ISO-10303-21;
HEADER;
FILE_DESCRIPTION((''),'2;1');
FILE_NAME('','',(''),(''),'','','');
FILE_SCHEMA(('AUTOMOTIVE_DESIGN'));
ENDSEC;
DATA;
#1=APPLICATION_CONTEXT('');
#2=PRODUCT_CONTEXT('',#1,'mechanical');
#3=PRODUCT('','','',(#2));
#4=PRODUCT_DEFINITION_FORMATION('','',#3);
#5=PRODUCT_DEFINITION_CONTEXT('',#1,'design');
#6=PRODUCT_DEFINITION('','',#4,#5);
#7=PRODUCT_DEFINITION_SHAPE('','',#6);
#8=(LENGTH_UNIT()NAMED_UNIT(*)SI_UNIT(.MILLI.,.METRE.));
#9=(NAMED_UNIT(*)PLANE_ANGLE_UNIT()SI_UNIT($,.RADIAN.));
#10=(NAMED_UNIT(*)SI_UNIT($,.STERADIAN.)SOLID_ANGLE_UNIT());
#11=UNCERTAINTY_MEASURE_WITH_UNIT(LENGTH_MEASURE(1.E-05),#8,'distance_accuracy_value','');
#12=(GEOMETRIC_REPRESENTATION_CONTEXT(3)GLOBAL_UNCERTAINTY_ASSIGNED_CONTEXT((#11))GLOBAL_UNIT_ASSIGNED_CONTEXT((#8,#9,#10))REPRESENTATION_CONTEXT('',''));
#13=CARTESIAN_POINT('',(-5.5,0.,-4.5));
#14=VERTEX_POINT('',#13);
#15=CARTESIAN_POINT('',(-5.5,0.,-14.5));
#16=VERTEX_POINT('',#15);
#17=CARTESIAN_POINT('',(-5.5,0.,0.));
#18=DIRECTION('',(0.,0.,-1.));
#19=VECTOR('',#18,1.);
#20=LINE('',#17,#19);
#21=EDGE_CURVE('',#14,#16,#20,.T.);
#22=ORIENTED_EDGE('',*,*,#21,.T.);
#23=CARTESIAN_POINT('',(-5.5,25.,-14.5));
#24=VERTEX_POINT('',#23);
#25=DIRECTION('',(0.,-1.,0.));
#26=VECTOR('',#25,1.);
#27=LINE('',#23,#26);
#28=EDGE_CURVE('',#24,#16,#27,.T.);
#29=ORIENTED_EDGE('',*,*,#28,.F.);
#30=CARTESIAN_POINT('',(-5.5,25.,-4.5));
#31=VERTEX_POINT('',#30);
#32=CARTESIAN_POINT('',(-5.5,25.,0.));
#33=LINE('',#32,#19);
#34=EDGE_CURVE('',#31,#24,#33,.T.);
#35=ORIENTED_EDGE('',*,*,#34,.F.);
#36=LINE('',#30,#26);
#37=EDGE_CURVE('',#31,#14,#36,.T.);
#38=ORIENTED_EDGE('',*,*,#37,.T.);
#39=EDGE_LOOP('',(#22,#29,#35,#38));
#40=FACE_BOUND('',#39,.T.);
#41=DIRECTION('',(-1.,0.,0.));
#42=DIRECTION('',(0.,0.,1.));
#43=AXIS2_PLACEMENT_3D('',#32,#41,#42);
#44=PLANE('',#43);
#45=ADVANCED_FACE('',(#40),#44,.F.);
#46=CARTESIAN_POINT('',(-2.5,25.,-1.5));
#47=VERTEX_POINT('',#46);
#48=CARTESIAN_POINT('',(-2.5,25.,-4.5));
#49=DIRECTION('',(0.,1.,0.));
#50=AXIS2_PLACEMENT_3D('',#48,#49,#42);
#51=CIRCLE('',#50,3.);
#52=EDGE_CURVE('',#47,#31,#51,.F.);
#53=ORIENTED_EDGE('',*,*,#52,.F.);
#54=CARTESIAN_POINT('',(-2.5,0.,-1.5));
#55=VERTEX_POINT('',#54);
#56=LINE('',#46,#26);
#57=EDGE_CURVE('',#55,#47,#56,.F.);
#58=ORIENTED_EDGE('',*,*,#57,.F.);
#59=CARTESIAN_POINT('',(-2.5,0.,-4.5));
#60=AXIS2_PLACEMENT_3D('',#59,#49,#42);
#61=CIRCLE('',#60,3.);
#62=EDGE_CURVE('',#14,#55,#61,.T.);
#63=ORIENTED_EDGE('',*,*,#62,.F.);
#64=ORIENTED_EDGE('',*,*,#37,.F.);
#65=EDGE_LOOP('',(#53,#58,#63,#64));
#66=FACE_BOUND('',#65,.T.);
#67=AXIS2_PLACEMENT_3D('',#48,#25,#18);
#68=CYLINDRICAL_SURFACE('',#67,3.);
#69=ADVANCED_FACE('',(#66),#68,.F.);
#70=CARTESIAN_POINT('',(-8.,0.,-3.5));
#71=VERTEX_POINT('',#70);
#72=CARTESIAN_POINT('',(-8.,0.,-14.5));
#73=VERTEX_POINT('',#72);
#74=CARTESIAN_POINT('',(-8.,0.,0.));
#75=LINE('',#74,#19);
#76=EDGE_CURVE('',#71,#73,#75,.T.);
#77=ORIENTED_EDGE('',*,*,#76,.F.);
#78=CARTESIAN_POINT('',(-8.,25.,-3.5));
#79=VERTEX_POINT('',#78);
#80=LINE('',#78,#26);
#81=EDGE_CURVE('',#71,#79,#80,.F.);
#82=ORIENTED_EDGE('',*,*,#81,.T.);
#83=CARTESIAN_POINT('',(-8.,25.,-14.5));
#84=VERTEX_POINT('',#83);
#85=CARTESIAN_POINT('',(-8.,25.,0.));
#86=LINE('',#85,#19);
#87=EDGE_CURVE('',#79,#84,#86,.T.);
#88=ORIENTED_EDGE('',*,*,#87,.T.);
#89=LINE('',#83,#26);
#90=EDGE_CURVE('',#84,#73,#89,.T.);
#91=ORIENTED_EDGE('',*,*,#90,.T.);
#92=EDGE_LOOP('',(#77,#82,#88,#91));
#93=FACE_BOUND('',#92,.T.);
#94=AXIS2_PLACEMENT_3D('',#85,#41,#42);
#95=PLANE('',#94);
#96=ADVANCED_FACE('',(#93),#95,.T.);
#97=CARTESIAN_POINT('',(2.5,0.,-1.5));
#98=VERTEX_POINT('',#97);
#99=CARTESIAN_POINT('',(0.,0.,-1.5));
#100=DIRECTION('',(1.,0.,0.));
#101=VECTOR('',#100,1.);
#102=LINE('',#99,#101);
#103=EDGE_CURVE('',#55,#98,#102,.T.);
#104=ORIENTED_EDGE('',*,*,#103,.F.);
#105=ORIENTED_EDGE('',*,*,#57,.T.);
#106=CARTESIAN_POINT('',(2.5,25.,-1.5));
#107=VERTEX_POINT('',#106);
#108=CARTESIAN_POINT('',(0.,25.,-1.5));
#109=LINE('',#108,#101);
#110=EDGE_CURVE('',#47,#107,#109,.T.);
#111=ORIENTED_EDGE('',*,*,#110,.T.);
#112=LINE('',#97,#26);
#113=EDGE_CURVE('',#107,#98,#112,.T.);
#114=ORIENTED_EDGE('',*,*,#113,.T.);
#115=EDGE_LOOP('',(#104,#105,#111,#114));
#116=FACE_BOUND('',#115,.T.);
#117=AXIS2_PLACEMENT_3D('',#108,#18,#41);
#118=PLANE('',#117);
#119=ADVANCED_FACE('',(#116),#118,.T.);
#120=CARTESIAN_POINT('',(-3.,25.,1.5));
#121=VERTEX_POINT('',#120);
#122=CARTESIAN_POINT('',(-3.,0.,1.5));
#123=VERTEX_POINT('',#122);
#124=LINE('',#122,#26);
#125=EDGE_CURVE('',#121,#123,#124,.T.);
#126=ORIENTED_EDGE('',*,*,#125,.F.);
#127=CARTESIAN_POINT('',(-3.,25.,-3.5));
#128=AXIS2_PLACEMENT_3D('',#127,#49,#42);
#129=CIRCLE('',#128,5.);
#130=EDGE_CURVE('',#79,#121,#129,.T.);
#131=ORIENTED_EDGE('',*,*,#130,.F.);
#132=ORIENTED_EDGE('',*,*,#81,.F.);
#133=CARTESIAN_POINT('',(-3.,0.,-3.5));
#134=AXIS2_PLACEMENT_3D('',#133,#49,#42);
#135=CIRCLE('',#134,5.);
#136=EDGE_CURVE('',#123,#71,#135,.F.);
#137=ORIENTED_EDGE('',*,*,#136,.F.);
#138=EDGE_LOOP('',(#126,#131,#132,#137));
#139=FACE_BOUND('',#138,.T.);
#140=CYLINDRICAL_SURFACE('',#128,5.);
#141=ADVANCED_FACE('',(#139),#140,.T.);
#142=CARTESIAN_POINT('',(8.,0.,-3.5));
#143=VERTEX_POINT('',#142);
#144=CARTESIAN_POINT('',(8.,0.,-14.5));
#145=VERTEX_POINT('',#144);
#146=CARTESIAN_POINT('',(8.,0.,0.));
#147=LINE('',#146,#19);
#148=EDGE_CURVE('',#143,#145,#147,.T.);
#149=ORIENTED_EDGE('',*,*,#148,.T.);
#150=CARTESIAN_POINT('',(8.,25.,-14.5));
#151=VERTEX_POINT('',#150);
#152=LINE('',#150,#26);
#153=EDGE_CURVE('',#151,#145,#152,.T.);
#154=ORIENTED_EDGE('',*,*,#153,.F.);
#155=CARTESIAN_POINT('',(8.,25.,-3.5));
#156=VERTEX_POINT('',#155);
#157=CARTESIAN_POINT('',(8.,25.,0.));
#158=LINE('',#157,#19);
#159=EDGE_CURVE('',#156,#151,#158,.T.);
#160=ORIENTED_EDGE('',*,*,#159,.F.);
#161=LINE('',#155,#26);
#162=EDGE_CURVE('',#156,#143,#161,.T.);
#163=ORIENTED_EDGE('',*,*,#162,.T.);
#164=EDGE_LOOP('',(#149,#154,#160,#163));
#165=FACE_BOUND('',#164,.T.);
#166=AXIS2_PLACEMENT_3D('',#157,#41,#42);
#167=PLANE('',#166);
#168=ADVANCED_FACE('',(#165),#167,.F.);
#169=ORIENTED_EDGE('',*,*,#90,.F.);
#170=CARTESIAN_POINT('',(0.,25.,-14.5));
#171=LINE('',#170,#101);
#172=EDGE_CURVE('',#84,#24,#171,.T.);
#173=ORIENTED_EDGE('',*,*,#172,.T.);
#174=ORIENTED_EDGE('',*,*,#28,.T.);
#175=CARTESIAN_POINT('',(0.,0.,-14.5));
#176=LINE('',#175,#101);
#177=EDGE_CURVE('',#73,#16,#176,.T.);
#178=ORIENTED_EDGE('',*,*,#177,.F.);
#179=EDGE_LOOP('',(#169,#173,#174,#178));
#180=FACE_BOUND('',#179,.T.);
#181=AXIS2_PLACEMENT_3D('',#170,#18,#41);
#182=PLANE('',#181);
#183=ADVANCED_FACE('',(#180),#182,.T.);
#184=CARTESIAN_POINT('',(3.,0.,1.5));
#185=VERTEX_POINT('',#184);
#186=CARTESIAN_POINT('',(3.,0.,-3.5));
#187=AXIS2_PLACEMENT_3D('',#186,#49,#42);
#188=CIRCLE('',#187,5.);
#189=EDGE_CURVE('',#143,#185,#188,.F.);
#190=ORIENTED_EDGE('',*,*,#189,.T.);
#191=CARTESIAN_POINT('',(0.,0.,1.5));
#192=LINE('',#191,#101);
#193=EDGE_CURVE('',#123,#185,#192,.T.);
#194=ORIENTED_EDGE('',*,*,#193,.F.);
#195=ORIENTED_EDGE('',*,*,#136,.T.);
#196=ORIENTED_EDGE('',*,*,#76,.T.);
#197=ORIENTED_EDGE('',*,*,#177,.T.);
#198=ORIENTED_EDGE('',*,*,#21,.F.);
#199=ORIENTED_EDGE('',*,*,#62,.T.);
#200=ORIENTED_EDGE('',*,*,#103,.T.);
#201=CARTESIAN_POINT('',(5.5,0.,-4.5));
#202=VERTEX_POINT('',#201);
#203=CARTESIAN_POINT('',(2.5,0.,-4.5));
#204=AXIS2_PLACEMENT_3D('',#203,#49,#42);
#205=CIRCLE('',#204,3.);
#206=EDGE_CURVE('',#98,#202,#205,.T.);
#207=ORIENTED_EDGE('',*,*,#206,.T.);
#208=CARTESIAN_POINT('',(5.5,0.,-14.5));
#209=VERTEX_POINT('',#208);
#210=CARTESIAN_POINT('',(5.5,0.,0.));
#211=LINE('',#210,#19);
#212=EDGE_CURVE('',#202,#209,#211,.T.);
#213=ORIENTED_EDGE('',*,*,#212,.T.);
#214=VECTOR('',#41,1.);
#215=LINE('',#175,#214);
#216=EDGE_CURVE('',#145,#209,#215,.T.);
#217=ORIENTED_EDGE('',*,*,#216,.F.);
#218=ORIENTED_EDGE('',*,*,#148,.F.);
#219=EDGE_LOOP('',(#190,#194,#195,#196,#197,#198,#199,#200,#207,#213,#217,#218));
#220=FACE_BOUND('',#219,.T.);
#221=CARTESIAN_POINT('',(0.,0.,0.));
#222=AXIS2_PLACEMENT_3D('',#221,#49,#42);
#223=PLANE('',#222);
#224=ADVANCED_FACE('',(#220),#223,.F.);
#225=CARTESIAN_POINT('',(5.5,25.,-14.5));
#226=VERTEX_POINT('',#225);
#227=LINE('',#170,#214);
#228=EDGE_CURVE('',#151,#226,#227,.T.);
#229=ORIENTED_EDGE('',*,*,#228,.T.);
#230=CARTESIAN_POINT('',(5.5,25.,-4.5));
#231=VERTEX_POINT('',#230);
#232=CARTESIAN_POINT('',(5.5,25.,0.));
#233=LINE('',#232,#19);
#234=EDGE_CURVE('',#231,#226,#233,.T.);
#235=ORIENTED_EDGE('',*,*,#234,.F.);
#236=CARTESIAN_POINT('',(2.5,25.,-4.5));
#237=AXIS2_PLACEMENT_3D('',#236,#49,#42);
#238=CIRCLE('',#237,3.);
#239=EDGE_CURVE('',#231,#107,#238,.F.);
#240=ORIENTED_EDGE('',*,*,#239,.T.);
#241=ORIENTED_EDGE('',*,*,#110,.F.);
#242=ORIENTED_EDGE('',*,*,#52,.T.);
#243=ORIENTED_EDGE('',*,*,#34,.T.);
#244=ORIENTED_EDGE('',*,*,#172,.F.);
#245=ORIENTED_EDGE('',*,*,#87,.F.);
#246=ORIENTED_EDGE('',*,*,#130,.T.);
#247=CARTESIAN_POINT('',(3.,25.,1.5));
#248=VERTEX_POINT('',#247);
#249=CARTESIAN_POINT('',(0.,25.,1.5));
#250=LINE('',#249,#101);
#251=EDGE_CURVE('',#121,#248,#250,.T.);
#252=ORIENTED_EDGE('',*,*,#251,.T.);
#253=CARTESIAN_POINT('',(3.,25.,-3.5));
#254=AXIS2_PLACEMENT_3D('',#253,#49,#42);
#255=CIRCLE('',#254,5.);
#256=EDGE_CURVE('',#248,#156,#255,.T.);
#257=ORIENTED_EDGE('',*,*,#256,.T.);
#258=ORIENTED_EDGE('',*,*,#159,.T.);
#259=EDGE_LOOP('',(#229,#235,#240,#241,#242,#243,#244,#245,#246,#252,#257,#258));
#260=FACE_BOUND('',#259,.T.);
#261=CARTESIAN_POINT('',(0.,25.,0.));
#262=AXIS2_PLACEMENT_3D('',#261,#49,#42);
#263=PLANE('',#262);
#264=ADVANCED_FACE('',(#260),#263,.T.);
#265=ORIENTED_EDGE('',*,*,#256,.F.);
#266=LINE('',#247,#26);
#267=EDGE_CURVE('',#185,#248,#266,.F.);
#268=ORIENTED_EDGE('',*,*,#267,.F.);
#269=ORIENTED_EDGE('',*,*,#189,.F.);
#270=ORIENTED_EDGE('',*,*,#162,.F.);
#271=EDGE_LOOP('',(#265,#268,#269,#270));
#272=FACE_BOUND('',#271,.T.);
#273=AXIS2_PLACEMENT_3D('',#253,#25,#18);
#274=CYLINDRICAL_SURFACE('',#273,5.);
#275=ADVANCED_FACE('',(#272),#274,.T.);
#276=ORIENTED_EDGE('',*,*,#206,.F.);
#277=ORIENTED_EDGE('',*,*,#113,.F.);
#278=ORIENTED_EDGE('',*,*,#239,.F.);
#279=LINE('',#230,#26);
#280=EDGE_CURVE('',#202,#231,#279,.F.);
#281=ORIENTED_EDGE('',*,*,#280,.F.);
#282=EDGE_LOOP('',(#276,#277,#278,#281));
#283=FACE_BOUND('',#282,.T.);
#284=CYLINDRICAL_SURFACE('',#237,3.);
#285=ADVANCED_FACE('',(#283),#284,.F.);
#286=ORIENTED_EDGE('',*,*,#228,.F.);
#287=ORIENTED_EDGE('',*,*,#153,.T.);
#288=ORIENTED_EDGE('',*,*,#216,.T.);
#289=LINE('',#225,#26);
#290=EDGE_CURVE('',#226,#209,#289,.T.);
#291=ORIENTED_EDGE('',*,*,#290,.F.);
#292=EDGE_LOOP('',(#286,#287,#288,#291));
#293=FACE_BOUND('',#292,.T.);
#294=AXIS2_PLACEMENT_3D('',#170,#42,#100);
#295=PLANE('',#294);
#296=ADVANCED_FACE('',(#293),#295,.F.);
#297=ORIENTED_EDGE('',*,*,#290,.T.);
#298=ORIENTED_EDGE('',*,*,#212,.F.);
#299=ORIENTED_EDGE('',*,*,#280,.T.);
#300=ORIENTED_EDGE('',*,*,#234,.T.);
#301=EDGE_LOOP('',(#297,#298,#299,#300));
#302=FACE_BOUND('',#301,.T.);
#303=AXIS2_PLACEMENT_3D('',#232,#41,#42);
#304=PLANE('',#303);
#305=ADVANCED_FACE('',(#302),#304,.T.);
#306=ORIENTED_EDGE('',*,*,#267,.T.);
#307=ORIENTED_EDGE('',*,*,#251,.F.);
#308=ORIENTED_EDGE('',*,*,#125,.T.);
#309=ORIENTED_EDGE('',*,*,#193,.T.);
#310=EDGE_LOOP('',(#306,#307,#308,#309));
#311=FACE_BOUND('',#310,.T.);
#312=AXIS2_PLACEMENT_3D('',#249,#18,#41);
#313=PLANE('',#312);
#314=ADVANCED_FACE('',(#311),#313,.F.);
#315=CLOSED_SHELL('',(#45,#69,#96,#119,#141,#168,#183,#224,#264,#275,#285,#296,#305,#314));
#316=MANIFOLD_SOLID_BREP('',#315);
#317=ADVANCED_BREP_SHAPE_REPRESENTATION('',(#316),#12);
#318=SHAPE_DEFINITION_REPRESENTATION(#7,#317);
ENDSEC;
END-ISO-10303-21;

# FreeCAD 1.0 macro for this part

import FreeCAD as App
import Part
import Sketcher
Q = App.Units.Quantity


def edges_at(feature, points):
    """Names of the edges that pass closest to the given points."""
    edges = feature.Shape.Edges
    near = lambda p: min(range(len(edges)), key=lambda i: edges[i].distToShape(Part.Vertex(*p))[0])
    return sorted({f"Edge{near(p) + 1}" for p in points})

doc = App.newDocument("Part")
params = doc.addObject("Spreadsheet::Sheet", "Params")
for row, (alias, value) in enumerate([
    ("sketch1_width", "11 mm"),
    ("sketch1_width2", "16 mm"),
    ("sketch1_height", "13 mm"),
    ("pad1_length", "25 mm"),
    ("fillet_radius", "3 mm"),
    ("fillet2_radius", "5 mm"),
], start=1):
    params.set(f"A{row}", alias)
    params.set(f"B{row}", "=" + value)
    params.setAlias(f"B{row}", alias)

body = doc.addObject("PartDesign::Body", "Body")

sketch1 = body.newObject("Sketcher::SketchObject", "Sketch")
sketch1.AttachmentSupport = (doc.getObject("XZ_Plane"), [""])
sketch1.MapMode = "FlatFace"
sketch1.addGeometry([
    Part.LineSegment(App.Vector(5.5, -14.5, 0), App.Vector(5.5, -1.5, 0)),
    Part.LineSegment(App.Vector(5.5, -1.5, 0), App.Vector(-5.5, -1.5, 0)),
    Part.LineSegment(App.Vector(-5.5, -1.5, 0), App.Vector(-5.5, -14.5, 0)),
    Part.LineSegment(App.Vector(-5.5, -14.5, 0), App.Vector(-8, -14.5, 0)),
    Part.LineSegment(App.Vector(-8, -14.5, 0), App.Vector(-8, 1.5, 0)),
    Part.LineSegment(App.Vector(-8, 1.5, 0), App.Vector(8, 1.5, 0)),
    Part.LineSegment(App.Vector(8, 1.5, 0), App.Vector(8, -14.5, 0)),
    Part.LineSegment(App.Vector(8, -14.5, 0), App.Vector(5.5, -14.5, 0)),
], False)
sketch1.addConstraint([
    Sketcher.Constraint("Coincident", 0, 2, 1, 1),
    Sketcher.Constraint("Coincident", 1, 2, 2, 1),
    Sketcher.Constraint("Coincident", 2, 2, 3, 1),
    Sketcher.Constraint("Coincident", 3, 2, 4, 1),
    Sketcher.Constraint("Coincident", 4, 2, 5, 1),
    Sketcher.Constraint("Coincident", 5, 2, 6, 1),
    Sketcher.Constraint("Coincident", 6, 2, 7, 1),
    Sketcher.Constraint("Coincident", 7, 2, 0, 1),
    Sketcher.Constraint("Vertical", 0),
    Sketcher.Constraint("Horizontal", 1),
    Sketcher.Constraint("Vertical", 2),
    Sketcher.Constraint("Horizontal", 3),
    Sketcher.Constraint("Vertical", 4),
    Sketcher.Constraint("Horizontal", 5),
    Sketcher.Constraint("Vertical", 6),
    Sketcher.Constraint("Horizontal", 7),
    Sketcher.Constraint("Symmetric", 3, 2, 6, 2, -2),
    Sketcher.Constraint("Equal", 3, 7),
    Sketcher.Constraint("Equal", 5, 4),
    Sketcher.Constraint("DistanceX", 1, 2, 1, 1, Q("11 mm")),
    Sketcher.Constraint("DistanceX", 5, 1, 5, 2, Q("16 mm")),
    Sketcher.Constraint("DistanceY", 0, 1, 0, 2, Q("13 mm")),
    Sketcher.Constraint("DistanceY", 0, 2, -1, 1, Q("1.5 mm")),
])
sketch1.setExpression("Constraints[19]", "Params.sketch1_width")
sketch1.setExpression("Constraints[20]", "Params.sketch1_width2")
sketch1.setExpression("Constraints[21]", "Params.sketch1_height")
pad1 = body.newObject("PartDesign::Pad", "Pad")
pad1.Profile = sketch1
pad1.setExpression("Length", "Params.pad1_length")
pad1.Reversed = True
doc.recompute()

fillet = body.newObject("PartDesign::Fillet", "Fillet")
fillet.Base = (pad1, edges_at(pad1, [(-5.5, 12.5, -1.5), (5.5, 12.5, -1.5)]))
fillet.setExpression("Radius", "Params.fillet_radius")
doc.recompute()

fillet2 = body.newObject("PartDesign::Fillet", "Fillet001")
fillet2.Base = (fillet, edges_at(fillet, [(8, 12.5, 1.5), (-8, 12.5, 1.5)]))
fillet2.setExpression("Radius", "Params.fillet2_radius")

doc.recompute()
